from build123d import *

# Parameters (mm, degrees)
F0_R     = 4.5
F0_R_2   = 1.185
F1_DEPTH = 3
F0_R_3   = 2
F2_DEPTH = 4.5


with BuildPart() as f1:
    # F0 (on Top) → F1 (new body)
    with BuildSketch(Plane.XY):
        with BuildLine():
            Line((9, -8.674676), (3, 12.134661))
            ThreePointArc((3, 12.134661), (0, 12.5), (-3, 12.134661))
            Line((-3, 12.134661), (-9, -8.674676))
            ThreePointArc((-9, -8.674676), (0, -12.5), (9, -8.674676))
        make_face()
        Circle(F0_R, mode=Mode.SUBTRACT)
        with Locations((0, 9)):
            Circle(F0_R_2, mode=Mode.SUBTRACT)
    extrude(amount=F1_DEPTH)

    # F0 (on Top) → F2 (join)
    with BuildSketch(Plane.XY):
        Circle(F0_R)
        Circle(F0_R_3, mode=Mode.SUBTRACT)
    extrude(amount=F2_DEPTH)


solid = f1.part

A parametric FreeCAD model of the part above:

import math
import FreeCAD as App
import Part
import Sketcher
from FreeCAD import Vector
Q = App.Units.Quantity

doc = App.newDocument("Part")
params = doc.addObject("Spreadsheet::Sheet", "Params")
for row, (alias, value) in enumerate([
    ("sketch1_diameter", "9 mm"),
    ("sketch1_radius", "12.5 mm"),
    ("sketch1_diameter2", "2.37 mm"),
    ("pad1_length", "3 mm"),
    ("sketch2_diameter", "9 mm"),
    ("sketch2_diameter2", "4 mm"),
    ("pad2_length", "4.5 mm"),
], start=1):
    params.set(f"A{row}", alias)
    params.set(f"B{row}", "=" + value)
    params.setAlias(f"B{row}", alias)

body = doc.addObject("PartDesign::Body", "Body")

sketch1 = doc.addObject("Sketcher::SketchObject", "Sketch")
body.addObject(sketch1)
sketch1.AttachmentSupport = (doc.XY_Plane, [""])
sketch1.MapMode = "FlatFace"
sketch1.addGeometry(Part.LineSegment(Vector(9, -8.7, 0), Vector(3, 12.1, 0)), False)
sketch1.addGeometry(Part.ArcOfCircle(Part.Circle(Vector(0, 0, 0), Vector(0, 0, 1), 12.5), math.radians(76), math.radians(104)), False)
sketch1.addGeometry(Part.LineSegment(Vector(-3, 12.1, 0), Vector(-9, -8.7, 0)), False)
sketch1.addGeometry(Part.ArcOfCircle(Part.Circle(Vector(0, 0, 0), Vector(0, 0, 1), 12.5), math.radians(-136), math.radians(-44)), False)
sketch1.addGeometry(Part.Circle(Vector(0, 0, 0), Vector(0, 0, 1), 4.5), False)
sketch1.addGeometry(Part.Circle(Vector(0, 9, 0), Vector(0, 0, 1), 1.2), False)
sketch1.addConstraint(Sketcher.Constraint("Coincident", 0, 2, 1, 1))
sketch1.addConstraint(Sketcher.Constraint("Coincident", 1, 2, 2, 1))
sketch1.addConstraint(Sketcher.Constraint("Coincident", 2, 2, 3, 1))
sketch1.addConstraint(Sketcher.Constraint("Coincident", 3, 2, 0, 1))
sketch1.addConstraint(Sketcher.Constraint("Coincident", 1, 3, -1, 1))
sketch1.addConstraint(Sketcher.Constraint("Coincident", 3, 3, -1, 1))
sketch1.addConstraint(Sketcher.Constraint("Coincident", 4, 3, -1, 1))
sketch1.addConstraint(Sketcher.Constraint("PointOnObject", 5, 3, -2))
sketch1.addConstraint(Sketcher.Constraint("Horizontal", 0, 2, 1, 2))
sketch1.addConstraint(Sketcher.Constraint("Horizontal", 2, 2, 3, 2))
sketch1.addConstraint(Sketcher.Constraint("Diameter", 4, Q("9 mm")))
sketch1.addConstraint(Sketcher.Constraint("Radius", 3, Q("12.5 mm")))
sketch1.addConstraint(Sketcher.Constraint("Diameter", 5, Q("2.37 mm")))
sketch1.addConstraint(Sketcher.Constraint("DistanceY", -1, 1, 5, 3, Q("9 mm")))
sketch1.addConstraint(Sketcher.Constraint("DistanceX", -1, 1, 0, 2, Q("3 mm")))
sketch1.addConstraint(Sketcher.Constraint("DistanceX", 2, 2, -1, 1, Q("9 mm")))
sketch1.addConstraint(Sketcher.Constraint("Radius", 1, Q("12.499997 mm")))
sketch1.setExpression("Constraints[10]", "Params.sketch1_diameter")
sketch1.setExpression("Constraints[11]", "Params.sketch1_radius")
sketch1.setExpression("Constraints[12]", "Params.sketch1_diameter2")
pad1 = doc.addObject("PartDesign::Pad", "Pad")
body.addObject(pad1)
pad1.Profile = sketch1
pad1.setExpression("Length", "Params.pad1_length")

sketch2 = doc.addObject("Sketcher::SketchObject", "Sketch001")
body.addObject(sketch2)
sketch2.AttachmentSupport = (doc.XY_Plane, [""])
sketch2.MapMode = "FlatFace"
sketch2.addGeometry(Part.Circle(Vector(0, 0, 0), Vector(0, 0, 1), 4.5), False)
sketch2.addGeometry(Part.Circle(Vector(0, 0, 0), Vector(0, 0, 1), 2), False)
sketch2.addConstraint(Sketcher.Constraint("Coincident", 0, 3, -1, 1))
sketch2.addConstraint(Sketcher.Constraint("Coincident", 1, 3, -1, 1))
sketch2.addConstraint(Sketcher.Constraint("Diameter", 0, Q("9 mm")))
sketch2.addConstraint(Sketcher.Constraint("Diameter", 1, Q("4 mm")))
sketch2.setExpression("Constraints[2]", "Params.sketch2_diameter")
sketch2.setExpression("Constraints[3]", "Params.sketch2_diameter2")
pad2 = doc.addObject("PartDesign::Pad", "Pad001")
body.addObject(pad2)
pad2.Profile = sketch2
pad2.setExpression("Length", "Params.pad2_length")

doc.recompute()
